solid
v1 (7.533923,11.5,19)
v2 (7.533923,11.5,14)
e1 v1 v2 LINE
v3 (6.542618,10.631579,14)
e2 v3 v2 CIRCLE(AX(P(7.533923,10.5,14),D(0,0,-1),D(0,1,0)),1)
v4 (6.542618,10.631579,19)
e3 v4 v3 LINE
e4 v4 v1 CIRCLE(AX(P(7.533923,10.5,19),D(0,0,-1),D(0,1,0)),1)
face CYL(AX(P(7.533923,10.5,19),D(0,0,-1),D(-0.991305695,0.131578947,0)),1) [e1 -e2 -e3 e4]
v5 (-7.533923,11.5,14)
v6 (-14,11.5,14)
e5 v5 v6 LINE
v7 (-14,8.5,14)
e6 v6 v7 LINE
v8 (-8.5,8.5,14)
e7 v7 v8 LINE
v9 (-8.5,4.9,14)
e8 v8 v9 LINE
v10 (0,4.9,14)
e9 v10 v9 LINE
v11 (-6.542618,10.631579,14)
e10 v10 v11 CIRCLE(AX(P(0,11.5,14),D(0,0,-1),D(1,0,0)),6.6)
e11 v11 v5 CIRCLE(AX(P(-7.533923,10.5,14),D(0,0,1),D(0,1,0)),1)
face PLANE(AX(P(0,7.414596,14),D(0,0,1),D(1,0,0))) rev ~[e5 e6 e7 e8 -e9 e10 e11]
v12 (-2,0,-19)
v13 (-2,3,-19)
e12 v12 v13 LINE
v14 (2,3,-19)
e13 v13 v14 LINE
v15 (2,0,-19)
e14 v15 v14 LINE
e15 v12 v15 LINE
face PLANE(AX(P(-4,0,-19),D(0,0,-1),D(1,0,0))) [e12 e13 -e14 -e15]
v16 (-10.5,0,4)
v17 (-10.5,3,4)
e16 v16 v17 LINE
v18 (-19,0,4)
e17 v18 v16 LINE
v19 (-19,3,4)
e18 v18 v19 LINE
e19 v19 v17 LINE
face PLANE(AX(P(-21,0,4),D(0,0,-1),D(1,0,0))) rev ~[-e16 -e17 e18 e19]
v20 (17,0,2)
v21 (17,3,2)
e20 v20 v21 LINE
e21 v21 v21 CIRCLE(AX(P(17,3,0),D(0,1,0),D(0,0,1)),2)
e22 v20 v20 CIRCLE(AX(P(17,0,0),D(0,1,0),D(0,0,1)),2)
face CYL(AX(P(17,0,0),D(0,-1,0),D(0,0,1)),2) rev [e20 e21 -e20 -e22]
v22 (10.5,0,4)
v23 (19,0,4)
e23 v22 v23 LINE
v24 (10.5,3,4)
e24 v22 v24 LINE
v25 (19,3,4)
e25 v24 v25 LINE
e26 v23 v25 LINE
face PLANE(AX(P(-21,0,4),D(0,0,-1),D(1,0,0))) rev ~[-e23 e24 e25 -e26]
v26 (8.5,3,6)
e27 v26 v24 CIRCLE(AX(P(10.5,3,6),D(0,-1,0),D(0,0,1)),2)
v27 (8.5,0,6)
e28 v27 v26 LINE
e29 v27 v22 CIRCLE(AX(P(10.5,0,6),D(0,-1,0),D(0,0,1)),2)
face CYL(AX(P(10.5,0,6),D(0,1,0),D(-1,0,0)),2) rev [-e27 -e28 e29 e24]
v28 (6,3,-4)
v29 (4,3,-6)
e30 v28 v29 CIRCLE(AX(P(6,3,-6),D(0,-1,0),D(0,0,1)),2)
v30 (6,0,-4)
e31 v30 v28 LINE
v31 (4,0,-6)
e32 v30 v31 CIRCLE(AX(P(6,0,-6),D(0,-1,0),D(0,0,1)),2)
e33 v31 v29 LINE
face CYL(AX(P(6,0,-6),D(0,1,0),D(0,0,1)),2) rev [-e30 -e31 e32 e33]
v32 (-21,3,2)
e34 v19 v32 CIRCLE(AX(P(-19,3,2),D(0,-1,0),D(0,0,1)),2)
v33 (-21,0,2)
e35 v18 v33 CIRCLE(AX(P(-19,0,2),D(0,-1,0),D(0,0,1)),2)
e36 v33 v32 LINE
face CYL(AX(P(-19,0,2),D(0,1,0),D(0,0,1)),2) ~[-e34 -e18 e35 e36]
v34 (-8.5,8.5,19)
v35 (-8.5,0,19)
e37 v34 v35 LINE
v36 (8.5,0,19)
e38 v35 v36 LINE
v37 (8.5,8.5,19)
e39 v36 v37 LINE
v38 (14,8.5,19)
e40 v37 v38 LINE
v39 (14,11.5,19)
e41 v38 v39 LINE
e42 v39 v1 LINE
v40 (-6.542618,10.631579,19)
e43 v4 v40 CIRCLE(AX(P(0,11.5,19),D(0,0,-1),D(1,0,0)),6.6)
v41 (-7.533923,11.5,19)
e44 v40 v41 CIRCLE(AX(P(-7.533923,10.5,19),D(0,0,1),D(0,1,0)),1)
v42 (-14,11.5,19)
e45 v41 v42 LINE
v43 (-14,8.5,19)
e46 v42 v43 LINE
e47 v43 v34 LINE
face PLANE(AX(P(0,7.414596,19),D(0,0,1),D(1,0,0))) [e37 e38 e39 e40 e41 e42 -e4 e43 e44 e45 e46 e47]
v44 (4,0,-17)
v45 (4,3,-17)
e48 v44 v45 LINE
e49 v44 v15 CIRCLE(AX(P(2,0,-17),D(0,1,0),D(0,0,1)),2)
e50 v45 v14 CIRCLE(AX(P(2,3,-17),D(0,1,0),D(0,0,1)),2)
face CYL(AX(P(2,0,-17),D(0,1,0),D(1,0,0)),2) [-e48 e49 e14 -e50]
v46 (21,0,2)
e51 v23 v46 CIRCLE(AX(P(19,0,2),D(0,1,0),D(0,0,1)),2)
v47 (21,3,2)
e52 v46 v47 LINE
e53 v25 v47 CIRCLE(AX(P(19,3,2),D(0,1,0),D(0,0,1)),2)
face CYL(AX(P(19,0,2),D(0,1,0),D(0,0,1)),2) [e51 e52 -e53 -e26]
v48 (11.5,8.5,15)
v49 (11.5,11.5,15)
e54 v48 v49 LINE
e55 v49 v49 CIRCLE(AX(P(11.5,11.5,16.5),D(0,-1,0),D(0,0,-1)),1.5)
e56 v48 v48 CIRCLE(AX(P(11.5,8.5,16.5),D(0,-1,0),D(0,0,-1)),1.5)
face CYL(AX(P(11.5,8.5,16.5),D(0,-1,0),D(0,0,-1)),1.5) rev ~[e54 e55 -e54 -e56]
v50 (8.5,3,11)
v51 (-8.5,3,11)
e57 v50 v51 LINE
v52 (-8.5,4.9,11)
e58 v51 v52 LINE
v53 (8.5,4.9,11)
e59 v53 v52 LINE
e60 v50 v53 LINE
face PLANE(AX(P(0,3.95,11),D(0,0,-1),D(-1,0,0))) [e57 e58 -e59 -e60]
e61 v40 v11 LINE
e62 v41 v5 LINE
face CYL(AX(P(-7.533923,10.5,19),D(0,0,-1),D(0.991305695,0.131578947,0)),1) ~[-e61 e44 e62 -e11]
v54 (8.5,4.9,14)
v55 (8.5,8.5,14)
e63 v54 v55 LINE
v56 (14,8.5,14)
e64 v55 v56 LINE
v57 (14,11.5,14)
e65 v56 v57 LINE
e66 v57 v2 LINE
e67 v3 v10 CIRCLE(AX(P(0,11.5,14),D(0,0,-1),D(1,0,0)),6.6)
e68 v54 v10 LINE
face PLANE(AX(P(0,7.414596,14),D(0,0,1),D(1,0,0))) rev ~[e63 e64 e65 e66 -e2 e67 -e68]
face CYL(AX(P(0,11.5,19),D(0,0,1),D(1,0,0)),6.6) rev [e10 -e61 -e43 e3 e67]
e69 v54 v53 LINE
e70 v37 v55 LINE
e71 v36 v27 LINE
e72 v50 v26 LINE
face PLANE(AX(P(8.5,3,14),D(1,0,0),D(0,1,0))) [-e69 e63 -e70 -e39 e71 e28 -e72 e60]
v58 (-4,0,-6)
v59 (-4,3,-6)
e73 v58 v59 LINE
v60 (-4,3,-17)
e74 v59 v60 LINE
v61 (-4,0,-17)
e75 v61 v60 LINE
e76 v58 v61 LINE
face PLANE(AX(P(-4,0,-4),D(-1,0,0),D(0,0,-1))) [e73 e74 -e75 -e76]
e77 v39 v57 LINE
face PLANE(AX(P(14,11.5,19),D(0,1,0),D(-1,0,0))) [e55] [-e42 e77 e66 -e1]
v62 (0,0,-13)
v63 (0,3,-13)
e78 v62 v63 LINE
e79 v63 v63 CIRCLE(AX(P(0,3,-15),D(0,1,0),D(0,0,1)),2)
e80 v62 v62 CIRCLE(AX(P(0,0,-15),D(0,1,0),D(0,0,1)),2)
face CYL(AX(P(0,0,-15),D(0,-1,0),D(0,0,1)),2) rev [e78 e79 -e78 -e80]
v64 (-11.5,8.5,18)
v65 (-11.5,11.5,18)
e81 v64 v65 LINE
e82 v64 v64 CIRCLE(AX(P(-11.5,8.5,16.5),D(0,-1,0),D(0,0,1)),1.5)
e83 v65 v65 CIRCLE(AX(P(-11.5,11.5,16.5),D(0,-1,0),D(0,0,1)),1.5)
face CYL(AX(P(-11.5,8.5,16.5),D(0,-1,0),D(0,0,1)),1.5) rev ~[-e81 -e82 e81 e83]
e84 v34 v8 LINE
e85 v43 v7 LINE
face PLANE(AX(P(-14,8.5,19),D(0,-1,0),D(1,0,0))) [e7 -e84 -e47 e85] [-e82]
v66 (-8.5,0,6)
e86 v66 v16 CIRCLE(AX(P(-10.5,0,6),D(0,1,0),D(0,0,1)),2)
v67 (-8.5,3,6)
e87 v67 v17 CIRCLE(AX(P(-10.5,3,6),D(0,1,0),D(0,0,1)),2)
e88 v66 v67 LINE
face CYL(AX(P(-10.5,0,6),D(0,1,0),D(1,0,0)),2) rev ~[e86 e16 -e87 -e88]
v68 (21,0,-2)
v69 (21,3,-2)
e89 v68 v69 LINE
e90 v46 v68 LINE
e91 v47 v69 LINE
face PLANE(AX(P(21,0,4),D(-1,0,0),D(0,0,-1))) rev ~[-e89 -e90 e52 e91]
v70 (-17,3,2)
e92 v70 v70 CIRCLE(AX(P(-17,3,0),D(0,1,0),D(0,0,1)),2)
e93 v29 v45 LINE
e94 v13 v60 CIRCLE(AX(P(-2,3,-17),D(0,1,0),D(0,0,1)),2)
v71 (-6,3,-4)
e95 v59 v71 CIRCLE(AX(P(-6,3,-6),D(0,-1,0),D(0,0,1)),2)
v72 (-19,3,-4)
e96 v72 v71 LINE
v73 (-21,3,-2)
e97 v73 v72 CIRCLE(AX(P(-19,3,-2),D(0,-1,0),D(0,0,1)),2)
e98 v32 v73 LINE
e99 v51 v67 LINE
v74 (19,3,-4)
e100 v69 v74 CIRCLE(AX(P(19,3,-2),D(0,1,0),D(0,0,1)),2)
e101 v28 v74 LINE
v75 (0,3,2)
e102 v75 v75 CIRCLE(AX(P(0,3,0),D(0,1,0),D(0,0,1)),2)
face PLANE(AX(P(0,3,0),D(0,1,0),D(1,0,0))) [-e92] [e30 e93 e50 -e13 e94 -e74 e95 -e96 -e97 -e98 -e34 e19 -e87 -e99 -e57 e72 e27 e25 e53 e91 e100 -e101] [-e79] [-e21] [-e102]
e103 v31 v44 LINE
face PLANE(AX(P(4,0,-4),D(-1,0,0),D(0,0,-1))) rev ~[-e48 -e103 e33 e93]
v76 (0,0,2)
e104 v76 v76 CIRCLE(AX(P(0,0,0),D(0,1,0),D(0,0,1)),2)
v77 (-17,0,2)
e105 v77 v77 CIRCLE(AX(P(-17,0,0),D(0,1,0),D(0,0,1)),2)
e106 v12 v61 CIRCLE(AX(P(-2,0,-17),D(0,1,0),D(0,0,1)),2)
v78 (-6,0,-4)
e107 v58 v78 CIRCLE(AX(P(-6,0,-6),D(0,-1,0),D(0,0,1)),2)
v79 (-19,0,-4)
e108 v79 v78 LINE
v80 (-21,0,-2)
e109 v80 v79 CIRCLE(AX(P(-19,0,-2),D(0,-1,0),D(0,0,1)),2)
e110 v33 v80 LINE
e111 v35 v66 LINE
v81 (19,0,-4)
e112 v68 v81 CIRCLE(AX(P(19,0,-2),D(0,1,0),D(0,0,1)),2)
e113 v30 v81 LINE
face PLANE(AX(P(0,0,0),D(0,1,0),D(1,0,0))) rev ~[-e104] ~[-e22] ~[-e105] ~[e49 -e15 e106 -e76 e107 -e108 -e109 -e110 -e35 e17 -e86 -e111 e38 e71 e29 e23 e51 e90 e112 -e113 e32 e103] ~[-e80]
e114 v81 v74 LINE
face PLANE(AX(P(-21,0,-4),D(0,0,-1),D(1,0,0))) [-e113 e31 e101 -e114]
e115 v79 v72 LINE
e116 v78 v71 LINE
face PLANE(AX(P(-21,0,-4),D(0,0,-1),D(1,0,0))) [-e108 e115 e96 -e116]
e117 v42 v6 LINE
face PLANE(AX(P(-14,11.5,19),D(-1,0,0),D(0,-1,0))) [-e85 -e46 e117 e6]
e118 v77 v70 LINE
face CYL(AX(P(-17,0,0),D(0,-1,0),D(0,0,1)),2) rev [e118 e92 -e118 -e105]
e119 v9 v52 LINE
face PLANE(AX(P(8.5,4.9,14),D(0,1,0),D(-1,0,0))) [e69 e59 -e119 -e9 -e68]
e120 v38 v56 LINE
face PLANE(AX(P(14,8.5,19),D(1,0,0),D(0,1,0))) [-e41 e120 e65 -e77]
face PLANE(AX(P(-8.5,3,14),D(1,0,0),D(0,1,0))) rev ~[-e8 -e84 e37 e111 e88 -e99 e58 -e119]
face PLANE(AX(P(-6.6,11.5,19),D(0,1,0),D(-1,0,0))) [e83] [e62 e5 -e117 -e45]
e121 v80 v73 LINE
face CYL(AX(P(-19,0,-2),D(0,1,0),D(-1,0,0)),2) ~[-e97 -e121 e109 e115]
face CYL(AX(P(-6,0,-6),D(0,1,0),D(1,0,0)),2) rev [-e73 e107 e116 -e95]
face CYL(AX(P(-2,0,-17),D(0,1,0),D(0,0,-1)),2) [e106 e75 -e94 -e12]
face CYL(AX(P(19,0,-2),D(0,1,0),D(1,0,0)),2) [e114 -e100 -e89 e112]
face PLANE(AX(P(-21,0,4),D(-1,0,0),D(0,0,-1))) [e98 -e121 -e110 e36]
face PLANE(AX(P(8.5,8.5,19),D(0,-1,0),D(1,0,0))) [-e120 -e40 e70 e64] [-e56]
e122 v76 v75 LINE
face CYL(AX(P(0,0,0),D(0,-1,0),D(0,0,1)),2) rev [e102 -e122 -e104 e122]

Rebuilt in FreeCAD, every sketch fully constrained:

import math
import FreeCAD as App
import Part
import Sketcher

V = App.Vector


def edges_at(feature, points):
    """Names of the edges that pass closest to the given points."""
    edges = feature.Shape.Edges
    near = lambda p: min(range(len(edges)), key=lambda i: edges[i].distToShape(Part.Vertex(*p))[0])
    return sorted({f"Edge{near(p) + 1}" for p in points})

doc = App.newDocument("Part")
body = doc.addObject("PartDesign::Body", "Body")

# Sketch on XZ plane
sketch1 = body.newObject("Sketcher::SketchObject", "Sketch")
sketch1.AttachmentSupport = (doc.getObject("XZ_Plane"), [""])
sketch1.MapMode = "FlatFace"
sketch1.addGeometry(Part.LineSegment(V(-4, -19, 0), V(-4, -4, 0)), False)
sketch1.addGeometry(Part.LineSegment(V(-4, -4, 0), V(-21, -4, 0)), False)
sketch1.addGeometry(Part.LineSegment(V(-21, -4, 0), V(-21, 4, 0)), False)
sketch1.addGeometry(Part.LineSegment(V(-21, 4, 0), V(21, 4, 0)), False)
sketch1.addGeometry(Part.LineSegment(V(21, 4, 0), V(21, -4, 0)), False)
sketch1.addGeometry(Part.LineSegment(V(21, -4, 0), V(4, -4, 0)), False)
sketch1.addGeometry(Part.LineSegment(V(4, -4, 0), V(4, -19, 0)), False)
sketch1.addGeometry(Part.LineSegment(V(4, -19, 0), V(-4, -19, 0)), False)
sketch1.addGeometry(Part.Circle(V(0, -15, 0), V(0, 0, 1), 2), False)
sketch1.addGeometry(Part.Circle(V(17, 0, 0), V(0, 0, 1), 2), False)
sketch1.addGeometry(Part.Circle(V(-17, 0, 0), V(0, 0, 1), 2), False)
sketch1.addGeometry(Part.Circle(V(0, 0, 0), V(0, 0, 1), 2), False)
sketch1.addConstraint(Sketcher.Constraint("Coincident", 0, 2, 1, 1))
sketch1.addConstraint(Sketcher.Constraint("Coincident", 1, 2, 2, 1))
sketch1.addConstraint(Sketcher.Constraint("Coincident", 2, 2, 3, 1))
sketch1.addConstraint(Sketcher.Constraint("Coincident", 3, 2, 4, 1))
sketch1.addConstraint(Sketcher.Constraint("Coincident", 4, 2, 5, 1))
sketch1.addConstraint(Sketcher.Constraint("Coincident", 5, 2, 6, 1))
sketch1.addConstraint(Sketcher.Constraint("Coincident", 6, 2, 7, 1))
sketch1.addConstraint(Sketcher.Constraint("Coincident", 7, 2, 0, 1))
sketch1.addConstraint(Sketcher.Constraint("Vertical", 0))
sketch1.addConstraint(Sketcher.Constraint("Horizontal", 1))
sketch1.addConstraint(Sketcher.Constraint("Vertical", 2))
sketch1.addConstraint(Sketcher.Constraint("Horizontal", 3))
sketch1.addConstraint(Sketcher.Constraint("Vertical", 4))
sketch1.addConstraint(Sketcher.Constraint("Horizontal", 5))
sketch1.addConstraint(Sketcher.Constraint("Vertical", 6))
sketch1.addConstraint(Sketcher.Constraint("Horizontal", 7))
sketch1.addConstraint(Sketcher.Constraint("Coincident", 11, 3, -1, 1))
sketch1.addConstraint(Sketcher.Constraint("Equal", 8, 9))
sketch1.addConstraint(Sketcher.Constraint("Equal", 9, 10))
sketch1.addConstraint(Sketcher.Constraint("Equal", 10, 11))
sketch1.addConstraint(Sketcher.Constraint("Symmetric", 9, 3, 10, 3, -1, 1))
sketch1.addConstraint(Sketcher.Constraint("Symmetric", 1, 2, 3, 2, -1, 1))
sketch1.addConstraint(Sketcher.Constraint("Symmetric", 0, 2, 5, 2, -2))
sketch1.addConstraint(Sketcher.Constraint("PointOnObject", 8, 3, -2))
sketch1.addConstraint(Sketcher.Constraint("PointOnObject", 9, 3, -1))
sketch1.addConstraint(Sketcher.Constraint("Equal", 7, 2))
sketch1.addConstraint(Sketcher.Constraint("Diameter", 8, 4.0))
sketch1.addConstraint(Sketcher.Constraint("DistanceX", 1, 2, 1, 1, 17.0))
sketch1.addConstraint(Sketcher.Constraint("DistanceX", 3, 1, 3, 2, 42.0))
sketch1.addConstraint(Sketcher.Constraint("DistanceY", 0, 1, 0, 2, 15.0))
sketch1.addConstraint(Sketcher.Constraint("DistanceY", 8, 3, -1, 1, 15.0))
sketch1.addConstraint(Sketcher.Constraint("DistanceX", -1, 1, 9, 3, 17.0))
pad1 = body.newObject("PartDesign::Pad", "Pad")
pad1.Profile = sketch1
pad1.Length = 3
pad1.Reversed = True

# Sketch on XZ plane
sketch2 = body.newObject("Sketcher::SketchObject", "Sketch001")
sketch2.AttachmentSupport = (doc.getObject("XZ_Plane"), [""])
sketch2.MapMode = "FlatFace"
sketch2.addGeometry(Part.LineSegment(V(-8, 4, 0), V(-8, 19, 0)), False)
sketch2.addGeometry(Part.LineSegment(V(-8, 19, 0), V(8, 19, 0)), False)
sketch2.addGeometry(Part.LineSegment(V(8, 19, 0), V(8, 4, 0)), False)
sketch2.addGeometry(Part.LineSegment(V(8, 4, 0), V(-8, 4, 0)), False)
sketch2.addConstraint(Sketcher.Constraint("Coincident", 0, 2, 1, 1))
sketch2.addConstraint(Sketcher.Constraint("Coincident", 1, 2, 2, 1))
sketch2.addConstraint(Sketcher.Constraint("Coincident", 2, 2, 3, 1))
sketch2.addConstraint(Sketcher.Constraint("Coincident", 3, 2, 0, 1))
sketch2.addConstraint(Sketcher.Constraint("Vertical", 0))
sketch2.addConstraint(Sketcher.Constraint("Horizontal", 1))
sketch2.addConstraint(Sketcher.Constraint("Vertical", 2))
sketch2.addConstraint(Sketcher.Constraint("Horizontal", 3))
sketch2.addConstraint(Sketcher.Constraint("DistanceX", 1, 1, 1, 2, 17.0))
sketch2.addConstraint(Sketcher.Constraint("DistanceY", 0, 1, 0, 2, 15.0))
sketch2.addConstraint(Sketcher.Constraint("DistanceY", -1, 1, 0, 2, 19.0))
sketch2.addConstraint(Sketcher.Constraint("DistanceX", 0, 2, -1, 1, 8.5))
pad2 = body.newObject("PartDesign::Pad", "Pad001")
pad2.Profile = sketch2
pad2.Length = 3
pad2.Reversed = True

# Sketch on XY plane
sketch3 = body.newObject("Sketcher::SketchObject", "Sketch002")
sketch3.AttachmentSupport = (doc.getObject("XY_Plane"), [""])
sketch3.MapMode = "FlatFace"
sketch3.AttachmentOffset = App.Placement(V(0, 0, 19), App.Rotation())
sketch3.addGeometry(Part.LineSegment(V(-14, 11.5, 0), V(-14, 8.5, 0)), False)
sketch3.addGeometry(Part.LineSegment(V(-14, 8.5, 0), V(-8.5, 8.5, 0)), False)
sketch3.addGeometry(Part.LineSegment(V(-8.5, 8.5, 0), V(-8.5, 3, 0)), False)
sketch3.addGeometry(Part.LineSegment(V(-8.5, 3, 0), V(8.5, 3, 0)), False)
sketch3.addGeometry(Part.LineSegment(V(8.5, 3, 0), V(8.5, 8.5, 0)), False)
sketch3.addGeometry(Part.LineSegment(V(8.5, 8.5, 0), V(14, 8.5, 0)), False)
sketch3.addGeometry(Part.LineSegment(V(14, 8.5, 0), V(14, 11.5, 0)), False)
sketch3.addGeometry(Part.LineSegment(V(14, 11.5, 0), V(6.6, 11.5, 0)), False)
sketch3.addGeometry(Part.ArcOfCircle(Part.Circle(V(0, 11.5, 0), V(0, 0, 1), 6.6), math.radians(180), math.radians(360)), False)
sketch3.addGeometry(Part.LineSegment(V(-6.6, 11.5, 0), V(-14, 11.5, 0)), False)
sketch3.addConstraint(Sketcher.Constraint("Coincident", 0, 2, 1, 1))
sketch3.addConstraint(Sketcher.Constraint("Coincident", 1, 2, 2, 1))
sketch3.addConstraint(Sketcher.Constraint("Coincident", 2, 2, 3, 1))
sketch3.addConstraint(Sketcher.Constraint("Coincident", 3, 2, 4, 1))
sketch3.addConstraint(Sketcher.Constraint("Coincident", 4, 2, 5, 1))
sketch3.addConstraint(Sketcher.Constraint("Coincident", 5, 2, 6, 1))
sketch3.addConstraint(Sketcher.Constraint("Coincident", 6, 2, 7, 1))
sketch3.addConstraint(Sketcher.Constraint("Coincident", 7, 2, 8, 2))
sketch3.addConstraint(Sketcher.Constraint("Coincident", 8, 1, 9, 1))
sketch3.addConstraint(Sketcher.Constraint("Coincident", 9, 2, 0, 1))
sketch3.addConstraint(Sketcher.Constraint("Vertical", 0))
sketch3.addConstraint(Sketcher.Constraint("Horizontal", 1))
sketch3.addConstraint(Sketcher.Constraint("Vertical", 2))
sketch3.addConstraint(Sketcher.Constraint("Horizontal", 3))
sketch3.addConstraint(Sketcher.Constraint("Vertical", 4))
sketch3.addConstraint(Sketcher.Constraint("Horizontal", 5))
sketch3.addConstraint(Sketcher.Constraint("Vertical", 6))
sketch3.addConstraint(Sketcher.Constraint("Horizontal", 7))
sketch3.addConstraint(Sketcher.Constraint("Horizontal", 9))
sketch3.addConstraint(Sketcher.Constraint("Symmetric", 1, 2, 4, 2, -2))
sketch3.addConstraint(Sketcher.Constraint("Symmetric", 7, 2, 8, 1, -2))
sketch3.addConstraint(Sketcher.Constraint("Horizontal", 8, 3, 6, 2))
sketch3.addConstraint(Sketcher.Constraint("Equal", 1, 5))
sketch3.addConstraint(Sketcher.Constraint("Equal", 5, 2))
sketch3.addConstraint(Sketcher.Constraint("Radius", 8, 6.6))
sketch3.addConstraint(Sketcher.Constraint("DistanceX", 3, 1, 3, 2, 17.0))
sketch3.addConstraint(Sketcher.Constraint("DistanceY", 0, 2, 0, 1, 3.0))
sketch3.addConstraint(Sketcher.Constraint("DistanceX", 1, 1, 1, 2, 5.5))
sketch3.addConstraint(Sketcher.Constraint("DistanceY", -1, 1, 2, 2, 3.0))
pad3 = body.newObject("PartDesign::Pad", "Pad002")
pad3.Profile = sketch3
pad3.Length = 5
pad3.Reversed = True

# Sketch on XY plane
sketch4 = body.newObject("Sketcher::SketchObject", "Sketch003")
sketch4.AttachmentSupport = (doc.getObject("XY_Plane"), [""])
sketch4.MapMode = "FlatFace"
sketch4.AttachmentOffset = App.Placement(V(0, 0, 14), App.Rotation())
sketch4.addGeometry(Part.LineSegment(V(8.5, 4.9, 0), V(8.5, 3, 0)), False)
sketch4.addGeometry(Part.LineSegment(V(8.5, 3, 0), V(-8.5, 3, 0)), False)
sketch4.addGeometry(Part.LineSegment(V(-8.5, 3, 0), V(-8.5, 4.9, 0)), False)
sketch4.addGeometry(Part.LineSegment(V(-8.5, 4.9, 0), V(8.5, 4.9, 0)), False)
sketch4.addConstraint(Sketcher.Constraint("Coincident", 0, 2, 1, 1))
sketch4.addConstraint(Sketcher.Constraint("Coincident", 1, 2, 2, 1))
sketch4.addConstraint(Sketcher.Constraint("Coincident", 2, 2, 3, 1))
sketch4.addConstraint(Sketcher.Constraint("Coincident", 3, 2, 0, 1))
sketch4.addConstraint(Sketcher.Constraint("Vertical", 0))
sketch4.addConstraint(Sketcher.Constraint("Horizontal", 1))
sketch4.addConstraint(Sketcher.Constraint("Vertical", 2))
sketch4.addConstraint(Sketcher.Constraint("Horizontal", 3))
sketch4.addConstraint(Sketcher.Constraint("DistanceX", 1, 2, 1, 1, 17.0))
sketch4.addConstraint(Sketcher.Constraint("DistanceY", 0, 2, 0, 1, 1.9))
sketch4.addConstraint(Sketcher.Constraint("DistanceY", -1, 1, 0, 2, 3.0))
sketch4.addConstraint(Sketcher.Constraint("DistanceX", -1, 1, 0, 2, 8.5))
pad4 = body.newObject("PartDesign::Pad", "Pad003")
pad4.Profile = sketch4
pad4.Length = 3
pad4.Reversed = True

# Sketch on XZ plane
sketch5 = body.newObject("Sketcher::SketchObject", "Sketch004")
sketch5.AttachmentSupport = (doc.getObject("XZ_Plane"), [""])
sketch5.MapMode = "FlatFace"
sketch5.AttachmentOffset = App.Placement(V(0, 0, -8.5), App.Rotation())
sketch5.addGeometry(Part.Circle(V(11.5, 16.5, 0), V(0, 0, 1), 1.5), False)
sketch5.addGeometry(Part.Circle(V(-11.5, 16.5, 0), V(0, 0, 1), 1.5), False)
sketch5.addConstraint(Sketcher.Constraint("Equal", 0, 1))
sketch5.addConstraint(Sketcher.Constraint("Symmetric", 0, 3, 1, 3, -2))
sketch5.addConstraint(Sketcher.Constraint("Diameter", 0, 3.0))
sketch5.addConstraint(Sketcher.Constraint("DistanceX", 1, 3, 0, 3, 23.0))
sketch5.addConstraint(Sketcher.Constraint("DistanceY", -1, 1, 0, 3, 16.5))
pocket1 = body.newObject("PartDesign::Pocket", "Pocket")
pocket1.Profile = sketch5
pocket1.Type = "ThroughAll"
doc.recompute()

fillet = body.newObject("PartDesign::Fillet", "Fillet")
fillet.Base = (pocket1, edges_at(pocket1, [(-6.6, 11.5, 16.5), (6.6, 11.5, 16.5)]))
fillet.Radius = 1
doc.recompute()

fillet2 = body.newObject("PartDesign::Fillet", "Fillet001")
fillet2.Base = (fillet, edges_at(fillet, [
    (4, 1.5, -4),
    (21, 1.5, -4),
    (21, 1.5, 4),
    (-21, 1.5, 4),
    (-21, 1.5, -4),
    (-4, 1.5, -4),
    (-4, 1.5, -19),
    (4, 1.5, -19),
    (8.5, 1.5, 4),
    (-8.5, 1.5, 4),
]))
fillet2.Radius = 2

doc.recompute()
